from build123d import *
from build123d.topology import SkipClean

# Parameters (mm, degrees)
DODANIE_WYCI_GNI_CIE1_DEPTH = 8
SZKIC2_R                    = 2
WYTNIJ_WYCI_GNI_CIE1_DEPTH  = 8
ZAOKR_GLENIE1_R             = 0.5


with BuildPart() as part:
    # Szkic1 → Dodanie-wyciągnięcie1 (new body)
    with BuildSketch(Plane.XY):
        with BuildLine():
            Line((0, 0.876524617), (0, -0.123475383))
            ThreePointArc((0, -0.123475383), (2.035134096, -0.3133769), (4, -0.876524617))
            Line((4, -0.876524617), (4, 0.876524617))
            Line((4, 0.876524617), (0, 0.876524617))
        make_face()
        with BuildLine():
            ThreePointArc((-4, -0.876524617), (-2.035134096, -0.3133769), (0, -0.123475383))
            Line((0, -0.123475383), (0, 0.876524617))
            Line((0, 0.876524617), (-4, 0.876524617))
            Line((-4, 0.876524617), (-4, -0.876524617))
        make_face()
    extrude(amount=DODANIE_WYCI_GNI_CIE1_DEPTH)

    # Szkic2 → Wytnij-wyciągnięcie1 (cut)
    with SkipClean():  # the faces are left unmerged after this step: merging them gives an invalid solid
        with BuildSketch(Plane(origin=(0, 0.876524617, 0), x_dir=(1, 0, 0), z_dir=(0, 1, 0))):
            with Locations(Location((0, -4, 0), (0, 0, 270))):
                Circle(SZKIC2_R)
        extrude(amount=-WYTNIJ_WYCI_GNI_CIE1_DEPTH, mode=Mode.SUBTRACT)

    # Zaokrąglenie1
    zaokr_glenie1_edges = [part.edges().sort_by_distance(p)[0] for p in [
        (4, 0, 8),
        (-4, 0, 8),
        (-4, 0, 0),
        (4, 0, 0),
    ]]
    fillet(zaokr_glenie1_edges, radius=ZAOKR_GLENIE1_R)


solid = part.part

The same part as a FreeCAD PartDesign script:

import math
import FreeCAD as App
import Part
import Sketcher

V = App.Vector
Q = App.Units.Quantity


def edges_at(feature, points):
    """Names of the edges that pass closest to the given points."""
    edges = feature.Shape.Edges
    near = lambda p: min(range(len(edges)), key=lambda i: edges[i].distToShape(Part.Vertex(*p))[0])
    return sorted({f"Edge{near(p) + 1}" for p in points})

doc = App.newDocument("Part")
body = doc.addObject("PartDesign::Body", "Body")

# Sketch on XY plane
sketch1 = body.newObject("Sketcher::SketchObject", "Sketch")
sketch1.AttachmentSupport = (doc.getObject("XY_Plane"), [""])
sketch1.MapMode = "FlatFace"
sketch1.addGeometry([
    Part.ArcOfCircle(Part.Circle(V(0, -11.1, 0), V(0, 0, 1), 11), math.radians(69), math.radians(90)),  # 0
    Part.LineSegment(V(4, -0.9, 0), V(4, 0.9, 0)),  # 1
    Part.LineSegment(V(4, 0.9, 0), V(-4, 0.9, 0)),  # 2
    Part.LineSegment(V(-4, 0.9, 0), V(-4, -0.9, 0)),  # 3
    Part.ArcOfCircle(Part.Circle(V(0, -11.1, 0), V(0, 0, 1), 11), math.radians(90), math.radians(111)),  # 4
], False)
sketch1.addConstraint([
    Sketcher.Constraint("Coincident", 0, 1, 1, 1),
    Sketcher.Constraint("Coincident", 1, 2, 2, 1),
    Sketcher.Constraint("Coincident", 2, 2, 3, 1),
    Sketcher.Constraint("Coincident", 3, 2, 4, 2),
    Sketcher.Constraint("Tangent", 4, 1, 0, 2),
    Sketcher.Constraint("Vertical", 1),
    Sketcher.Constraint("Horizontal", 2),
    Sketcher.Constraint("Vertical", 3),
    Sketcher.Constraint("Equal", 0, 4),
    Sketcher.Constraint("Symmetric", 0, 1, 2, 2, -1, 1),
    Sketcher.Constraint("PointOnObject", 0, 3, -2),
    Sketcher.Constraint("PointOnObject", 4, 1, -2),
    Sketcher.Constraint("Radius", 0, Q("11 mm")),
    Sketcher.Constraint("DistanceX", 2, 2, 2, 1, Q("8 mm")),
    Sketcher.Constraint("DistanceY", 0, 3, 1, 2, Q("12 mm")),
])
pad1 = body.newObject("PartDesign::Pad", "Pad")
pad1.Profile = sketch1
pad1.Length = 8

# Sketch on XZ plane
sketch2 = body.newObject("Sketcher::SketchObject", "Sketch001")
sketch2.AttachmentSupport = (doc.getObject("XZ_Plane"), [""])
sketch2.MapMode = "FlatFace"
sketch2.AttachmentOffset = App.Placement(V(0, 0, -0.876525), App.Rotation())
sketch2.addGeometry(Part.Circle(V(0, 4, 0), V(0, 0, 1), 2), False)
sketch2.addConstraint([
    Sketcher.Constraint("PointOnObject", 0, 3, -2),
    Sketcher.Constraint("Diameter", 0, Q("4 mm")),
    Sketcher.Constraint("DistanceY", -1, 1, 0, 3, Q("4 mm")),
])
pocket1 = body.newObject("PartDesign::Pocket", "Pocket")
pocket1.Profile = sketch2
pocket1.Length = 8
pocket1.Reversed = True
doc.recompute()

fillet = body.newObject("PartDesign::Fillet", "Fillet")
fillet.Base = (pocket1, edges_at(pocket1, [
    (4, 0, 8),
    (-4, 0, 8),
    (-4, 0, 0),
    (4, 0, 0),
]))
fillet.Radius = 0.5

doc.recompute()
